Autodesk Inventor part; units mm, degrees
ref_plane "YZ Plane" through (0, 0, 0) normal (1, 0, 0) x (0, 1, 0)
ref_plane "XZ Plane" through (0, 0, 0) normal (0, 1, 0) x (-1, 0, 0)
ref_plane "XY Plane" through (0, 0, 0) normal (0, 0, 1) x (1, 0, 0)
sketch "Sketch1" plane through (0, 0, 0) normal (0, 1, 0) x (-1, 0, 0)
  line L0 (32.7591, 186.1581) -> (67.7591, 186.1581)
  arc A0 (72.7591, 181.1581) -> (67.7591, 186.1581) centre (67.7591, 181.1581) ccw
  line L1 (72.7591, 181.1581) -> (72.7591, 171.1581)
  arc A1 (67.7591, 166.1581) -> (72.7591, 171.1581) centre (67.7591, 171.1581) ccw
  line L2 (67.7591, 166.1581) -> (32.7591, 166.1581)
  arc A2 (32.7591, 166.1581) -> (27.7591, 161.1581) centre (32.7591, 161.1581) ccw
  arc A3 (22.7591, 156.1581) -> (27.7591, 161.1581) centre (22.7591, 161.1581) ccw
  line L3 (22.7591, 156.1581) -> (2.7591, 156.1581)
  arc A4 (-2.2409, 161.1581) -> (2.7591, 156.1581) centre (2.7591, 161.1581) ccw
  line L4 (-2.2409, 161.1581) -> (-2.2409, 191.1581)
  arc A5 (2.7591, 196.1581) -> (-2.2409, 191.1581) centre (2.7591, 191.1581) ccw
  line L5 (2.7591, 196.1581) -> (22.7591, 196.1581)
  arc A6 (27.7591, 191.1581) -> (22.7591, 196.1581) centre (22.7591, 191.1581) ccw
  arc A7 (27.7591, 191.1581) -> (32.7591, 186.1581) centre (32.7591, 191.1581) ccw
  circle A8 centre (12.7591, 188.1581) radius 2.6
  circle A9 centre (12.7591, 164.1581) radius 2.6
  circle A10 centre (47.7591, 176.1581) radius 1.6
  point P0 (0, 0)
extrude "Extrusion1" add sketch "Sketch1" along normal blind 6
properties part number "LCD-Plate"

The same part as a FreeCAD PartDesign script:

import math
import FreeCAD as App
import Part
import Sketcher
from FreeCAD import Vector

doc = App.newDocument("Part")
body = doc.addObject("PartDesign::Body", "Body")

# Sketch on XZ plane
sketch1 = doc.addObject("Sketcher::SketchObject", "Sketch")
body.addObject(sketch1)
sketch1.AttachmentSupport = (doc.XZ_Plane, [""])
sketch1.MapMode = "FlatFace"
sketch1.addGeometry(Part.LineSegment(Vector(-67.8, 186.2, 0), Vector(-32.8, 186.2, 0)), False)
sketch1.addGeometry(Part.ArcOfCircle(Part.Circle(Vector(-32.8, 191.2, 0), Vector(0, 0, 1), 5), math.radians(-90), math.radians(0)), False)
sketch1.addGeometry(Part.ArcOfCircle(Part.Circle(Vector(-22.8, 191.2, 0), Vector(0, 0, 1), 5), math.radians(90), math.radians(180)), False)
sketch1.addGeometry(Part.LineSegment(Vector(-22.8, 196.2, 0), Vector(-2.8, 196.2, 0)), False)
sketch1.addGeometry(Part.ArcOfCircle(Part.Circle(Vector(-2.8, 191.2, 0), Vector(0, 0, 1), 5), math.radians(0), math.radians(90)), False)
sketch1.addGeometry(Part.LineSegment(Vector(2.2, 191.2, 0), Vector(2.2, 161.2, 0)), False)
sketch1.addGeometry(Part.ArcOfCircle(Part.Circle(Vector(-2.8, 161.2, 0), Vector(0, 0, 1), 5), math.radians(-90), math.radians(0)), False)
sketch1.addGeometry(Part.LineSegment(Vector(-2.8, 156.2, 0), Vector(-22.8, 156.2, 0)), False)
sketch1.addGeometry(Part.ArcOfCircle(Part.Circle(Vector(-22.8, 161.2, 0), Vector(0, 0, 1), 5), math.radians(180), math.radians(270)), False)
sketch1.addGeometry(Part.ArcOfCircle(Part.Circle(Vector(-32.8, 161.2, 0), Vector(0, 0, 1), 5), math.radians(0), math.radians(90)), False)
sketch1.addGeometry(Part.LineSegment(Vector(-32.8, 166.2, 0), Vector(-67.8, 166.2, 0)), False)
sketch1.addGeometry(Part.ArcOfCircle(Part.Circle(Vector(-67.8, 171.2, 0), Vector(0, 0, 1), 5), math.radians(180), math.radians(270)), False)
sketch1.addGeometry(Part.LineSegment(Vector(-72.8, 171.2, 0), Vector(-72.8, 181.2, 0)), False)
sketch1.addGeometry(Part.ArcOfCircle(Part.Circle(Vector(-67.8, 181.2, 0), Vector(0, 0, 1), 5), math.radians(90), math.radians(180)), False)
sketch1.addGeometry(Part.Circle(Vector(-12.8, 164.2, 0), Vector(0, 0, 1), 2.6), False)
sketch1.addGeometry(Part.Circle(Vector(-12.8, 188.2, 0), Vector(0, 0, 1), 2.6), False)
sketch1.addGeometry(Part.Circle(Vector(-47.8, 176.2, 0), Vector(0, 0, 1), 1.6), False)
sketch1.addConstraint(Sketcher.Constraint("Tangent", 0, 2, 1, 1))
sketch1.addConstraint(Sketcher.Constraint("Tangent", 1, 2, 2, 2))
sketch1.addConstraint(Sketcher.Constraint("Tangent", 2, 1, 3, 1))
sketch1.addConstraint(Sketcher.Constraint("Tangent", 3, 2, 4, 2))
sketch1.addConstraint(Sketcher.Constraint("Tangent", 4, 1, 5, 1))
sketch1.addConstraint(Sketcher.Constraint("Tangent", 5, 2, 6, 2))
sketch1.addConstraint(Sketcher.Constraint("Tangent", 6, 1, 7, 1))
sketch1.addConstraint(Sketcher.Constraint("Tangent", 7, 2, 8, 2))
sketch1.addConstraint(Sketcher.Constraint("Tangent", 8, 1, 9, 1))
sketch1.addConstraint(Sketcher.Constraint("Tangent", 9, 2, 10, 1))
sketch1.addConstraint(Sketcher.Constraint("Tangent", 10, 2, 11, 2))
sketch1.addConstraint(Sketcher.Constraint("Tangent", 11, 1, 12, 1))
sketch1.addConstraint(Sketcher.Constraint("Tangent", 12, 2, 13, 2))
sketch1.addConstraint(Sketcher.Constraint("Tangent", 13, 1, 0, 1))
sketch1.addConstraint(Sketcher.Constraint("Horizontal", 0))
sketch1.addConstraint(Sketcher.Constraint("Horizontal", 3))
sketch1.addConstraint(Sketcher.Constraint("Vertical", 5))
sketch1.addConstraint(Sketcher.Constraint("Horizontal", 7))
sketch1.addConstraint(Sketcher.Constraint("Horizontal", 10))
sketch1.addConstraint(Sketcher.Constraint("Vertical", 12))
sketch1.addConstraint(Sketcher.Constraint("Equal", 1, 2))
sketch1.addConstraint(Sketcher.Constraint("Equal", 2, 4))
sketch1.addConstraint(Sketcher.Constraint("Equal", 4, 6))
sketch1.addConstraint(Sketcher.Constraint("Equal", 6, 8))
sketch1.addConstraint(Sketcher.Constraint("Equal", 8, 9))
sketch1.addConstraint(Sketcher.Constraint("Equal", 9, 11))
sketch1.addConstraint(Sketcher.Constraint("Equal", 11, 13))
sketch1.addConstraint(Sketcher.Constraint("Equal", 14, 15))
sketch1.addConstraint(Sketcher.Constraint("Horizontal", 1, 3, 2, 3))
sketch1.addConstraint(Sketcher.Constraint("Horizontal", 8, 3, 9, 3))
sketch1.addConstraint(Sketcher.Constraint("Vertical", 2, 3, 8, 3))
sketch1.addConstraint(Sketcher.Constraint("Vertical", 14, 3, 15, 3))
sketch1.addConstraint(Sketcher.Constraint("Radius", 1, 5.0))
sketch1.addConstraint(Sketcher.Constraint("Diameter", 14, 5.2))
sketch1.addConstraint(Sketcher.Constraint("Diameter", 16, 3.2))
sketch1.addConstraint(Sketcher.Constraint("DistanceX", 0, 1, 0, 2, 35.0))
sketch1.addConstraint(Sketcher.Constraint("DistanceX", 3, 1, 3, 2, 20.0))
sketch1.addConstraint(Sketcher.Constraint("DistanceY", 5, 2, 5, 1, 30.0))
sketch1.addConstraint(Sketcher.Constraint("DistanceX", 14, 3, 6, 3, 10.0))
sketch1.addConstraint(Sketcher.Constraint("DistanceY", 6, 3, 14, 3, 3.0))
sketch1.addConstraint(Sketcher.Constraint("DistanceY", 15, 3, 2, 3, 3.0))
sketch1.addConstraint(Sketcher.Constraint("DistanceX", 11, 3, 16, 3, 20.0))
sketch1.addConstraint(Sketcher.Constraint("DistanceY", 11, 3, 16, 3, 5.0))
sketch1.addConstraint(Sketcher.Constraint("DistanceX", 1, 3, -1, 1, 32.759))
sketch1.addConstraint(Sketcher.Constraint("DistanceY", -1, 1, 1, 3, 191.158))
pad1 = doc.addObject("PartDesign::Pad", "Pad")
body.addObject(pad1)
pad1.Profile = sketch1
pad1.Length = 6
pad1.Reversed = True

doc.recompute()
